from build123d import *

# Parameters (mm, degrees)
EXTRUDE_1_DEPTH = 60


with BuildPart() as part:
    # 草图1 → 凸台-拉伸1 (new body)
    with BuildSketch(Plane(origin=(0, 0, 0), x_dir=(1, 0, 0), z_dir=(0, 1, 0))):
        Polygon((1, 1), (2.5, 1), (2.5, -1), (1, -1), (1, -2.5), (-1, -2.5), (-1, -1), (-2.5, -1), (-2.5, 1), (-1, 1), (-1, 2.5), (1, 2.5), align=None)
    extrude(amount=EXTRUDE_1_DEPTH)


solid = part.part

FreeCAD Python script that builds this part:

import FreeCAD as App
import Part
import Sketcher
from FreeCAD import Vector
Q = App.Units.Quantity


def add_polygon(sketch, points):
    """Adds a closed chain of lines whose ends are joined by coincident constraints."""
    first, n = sketch.GeometryCount, len(points)
    for a, b in zip(points, points[1:] + points[:1]):
        sketch.addGeometry(Part.LineSegment(App.Vector(*a, 0), App.Vector(*b, 0)), False)
    for i in range(n):
        sketch.addConstraint(Sketcher.Constraint("Coincident", first + i, 2, first + (i + 1) % n, 1))

doc = App.newDocument("Part")
body = doc.addObject("PartDesign::Body", "Body")

sketch1 = body.newObject("Sketcher::SketchObject", "Sketch")
sketch1.AttachmentSupport = (doc.getObject("XZ_Plane"), [""])
sketch1.MapMode = "FlatFace"
add_polygon(sketch1, [(2.5, -1), (1, -1), (1, -2.5), (-1, -2.5), (-1, -1), (-2.5, -1), (-2.5, 1), (-1, 1), (-1, 2.5), (1, 2.5), (1, 1), (2.5, 1)])
sketch1.addConstraint([
    Sketcher.Constraint("Horizontal", 0),
    Sketcher.Constraint("Vertical", 1),
    Sketcher.Constraint("Horizontal", 2),
    Sketcher.Constraint("Vertical", 3),
    Sketcher.Constraint("Horizontal", 4),
    Sketcher.Constraint("Vertical", 5),
    Sketcher.Constraint("Horizontal", 6),
    Sketcher.Constraint("Vertical", 7),
    Sketcher.Constraint("Horizontal", 8),
    Sketcher.Constraint("Vertical", 9),
    Sketcher.Constraint("Horizontal", 10),
    Sketcher.Constraint("Vertical", 11),
    Sketcher.Constraint("Symmetric", 0, 2, 6, 2, -1, 1),
    Sketcher.Constraint("Symmetric", 2, 2, 8, 2, -1, 1),
    Sketcher.Constraint("Symmetric", 4, 2, 10, 2, -1, 1),
    Sketcher.Constraint("Symmetric", 0, 2, 3, 2, -2),
    Sketcher.Constraint("Equal", 10, 1),
    Sketcher.Constraint("Equal", 8, 5),
    Sketcher.Constraint("DistanceX", 2, 2, 2, 1, Q("2 mm")),
    Sketcher.Constraint("DistanceX", 0, 2, 0, 1, Q("1.5 mm")),
])
pad1 = body.newObject("PartDesign::Pad", "Pad")
pad1.Profile = sketch1
pad1.Length = 60
pad1.Reversed = True

doc.recompute()
